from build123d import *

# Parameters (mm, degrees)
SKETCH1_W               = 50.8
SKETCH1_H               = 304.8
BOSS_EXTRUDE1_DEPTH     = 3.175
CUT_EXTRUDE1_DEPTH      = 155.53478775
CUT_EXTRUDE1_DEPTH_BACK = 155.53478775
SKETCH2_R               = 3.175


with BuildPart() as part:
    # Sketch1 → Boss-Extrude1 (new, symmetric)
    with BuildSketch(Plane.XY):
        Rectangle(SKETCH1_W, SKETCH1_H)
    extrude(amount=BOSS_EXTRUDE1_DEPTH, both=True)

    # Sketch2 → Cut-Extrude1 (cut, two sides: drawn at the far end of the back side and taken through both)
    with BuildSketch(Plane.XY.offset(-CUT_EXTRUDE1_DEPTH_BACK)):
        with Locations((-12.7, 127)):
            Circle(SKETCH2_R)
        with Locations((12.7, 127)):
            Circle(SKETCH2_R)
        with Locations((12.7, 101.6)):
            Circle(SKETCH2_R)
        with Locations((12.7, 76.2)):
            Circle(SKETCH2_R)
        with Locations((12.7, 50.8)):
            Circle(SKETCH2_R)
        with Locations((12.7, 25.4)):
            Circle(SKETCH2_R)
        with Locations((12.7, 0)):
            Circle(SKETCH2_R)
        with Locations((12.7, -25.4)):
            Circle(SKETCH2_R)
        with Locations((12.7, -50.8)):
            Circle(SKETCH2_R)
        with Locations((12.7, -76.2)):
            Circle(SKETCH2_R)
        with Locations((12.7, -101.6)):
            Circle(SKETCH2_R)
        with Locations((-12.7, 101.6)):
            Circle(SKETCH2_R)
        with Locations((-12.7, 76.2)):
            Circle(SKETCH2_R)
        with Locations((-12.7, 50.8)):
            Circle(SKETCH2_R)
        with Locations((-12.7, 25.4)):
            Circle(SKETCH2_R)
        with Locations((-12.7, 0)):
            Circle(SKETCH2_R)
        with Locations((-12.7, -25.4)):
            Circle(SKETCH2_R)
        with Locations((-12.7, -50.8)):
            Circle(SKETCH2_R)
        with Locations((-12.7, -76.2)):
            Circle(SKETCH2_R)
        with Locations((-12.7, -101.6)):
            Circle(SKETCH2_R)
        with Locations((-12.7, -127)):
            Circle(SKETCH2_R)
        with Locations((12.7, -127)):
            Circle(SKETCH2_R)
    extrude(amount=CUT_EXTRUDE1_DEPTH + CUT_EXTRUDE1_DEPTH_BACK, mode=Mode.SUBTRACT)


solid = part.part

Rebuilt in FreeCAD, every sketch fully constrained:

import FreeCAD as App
import Part
import Sketcher
from FreeCAD import Vector
Q = App.Units.Quantity

doc = App.newDocument("Part")
body = doc.addObject("PartDesign::Body", "Body")

# Sketch on XY plane
sketch1 = doc.addObject("Sketcher::SketchObject", "Sketch")
body.addObject(sketch1)
sketch1.AttachmentSupport = (doc.XY_Plane, [""])
sketch1.MapMode = "FlatFace"
sketch1.addGeometry(Part.LineSegment(Vector(-25, 152, 0), Vector(-25, -152, 0)), False)
sketch1.addGeometry(Part.LineSegment(Vector(-25, -152, 0), Vector(25, -152, 0)), False)
sketch1.addGeometry(Part.LineSegment(Vector(25, -152, 0), Vector(25, 152, 0)), False)
sketch1.addGeometry(Part.LineSegment(Vector(25, 152, 0), Vector(-25, 152, 0)), False)
sketch1.addConstraint(Sketcher.Constraint("Coincident", 0, 2, 1, 1))
sketch1.addConstraint(Sketcher.Constraint("Coincident", 1, 2, 2, 1))
sketch1.addConstraint(Sketcher.Constraint("Coincident", 2, 2, 3, 1))
sketch1.addConstraint(Sketcher.Constraint("Coincident", 3, 2, 0, 1))
sketch1.addConstraint(Sketcher.Constraint("Vertical", 0))
sketch1.addConstraint(Sketcher.Constraint("Horizontal", 1))
sketch1.addConstraint(Sketcher.Constraint("Vertical", 2))
sketch1.addConstraint(Sketcher.Constraint("Horizontal", 3))
sketch1.addConstraint(Sketcher.Constraint("Symmetric", 0, 2, 2, 2, -1, 1))
sketch1.addConstraint(Sketcher.Constraint("DistanceX", 1, 1, 1, 2, Q("2 in")))
sketch1.addConstraint(Sketcher.Constraint("DistanceY", 0, 2, 0, 1, Q("12 in")))
pad1 = doc.addObject("PartDesign::Pad", "Pad")
body.addObject(pad1)
pad1.Profile = sketch1
pad1.Length = Q("0.25 in")
pad1.Midplane = True

# Sketch on XY plane
sketch2 = doc.addObject("Sketcher::SketchObject", "Sketch001")
body.addObject(sketch2)
sketch2.AttachmentSupport = (doc.XY_Plane, [""])
sketch2.MapMode = "FlatFace"
sketch2.addGeometry(Part.Circle(Vector(-12.7, 127, 0), Vector(0, 0, 1), 3.2), False)
sketch2.addGeometry(Part.Circle(Vector(12.7, 127, 0), Vector(0, 0, 1), 3.2), False)
sketch2.addGeometry(Part.Circle(Vector(12.7, 101.6, 0), Vector(0, 0, 1), 3.2), False)
sketch2.addGeometry(Part.Circle(Vector(12.7, 76.2, 0), Vector(0, 0, 1), 3.2), False)
sketch2.addGeometry(Part.Circle(Vector(12.7, 50.8, 0), Vector(0, 0, 1), 3.2), False)
sketch2.addGeometry(Part.Circle(Vector(12.7, 25.4, 0), Vector(0, 0, 1), 3.2), False)
sketch2.addGeometry(Part.Circle(Vector(12.7, 0, 0), Vector(0, 0, 1), 3.2), False)
sketch2.addGeometry(Part.Circle(Vector(12.7, -25.4, 0), Vector(0, 0, 1), 3.2), False)
sketch2.addGeometry(Part.Circle(Vector(12.7, -50.8, 0), Vector(0, 0, 1), 3.2), False)
sketch2.addGeometry(Part.Circle(Vector(12.7, -76.2, 0), Vector(0, 0, 1), 3.2), False)
sketch2.addGeometry(Part.Circle(Vector(12.7, -101.6, 0), Vector(0, 0, 1), 3.2), False)
sketch2.addGeometry(Part.Circle(Vector(-12.7, 101.6, 0), Vector(0, 0, 1), 3.2), False)
sketch2.addGeometry(Part.Circle(Vector(-12.7, 76.2, 0), Vector(0, 0, 1), 3.2), False)
sketch2.addGeometry(Part.Circle(Vector(-12.7, 50.8, 0), Vector(0, 0, 1), 3.2), False)
sketch2.addGeometry(Part.Circle(Vector(-12.7, 25.4, 0), Vector(0, 0, 1), 3.2), False)
sketch2.addGeometry(Part.Circle(Vector(-12.7, 0, 0), Vector(0, 0, 1), 3.2), False)
sketch2.addGeometry(Part.Circle(Vector(-12.7, -25.4, 0), Vector(0, 0, 1), 3.2), False)
sketch2.addGeometry(Part.Circle(Vector(-12.7, -50.8, 0), Vector(0, 0, 1), 3.2), False)
sketch2.addGeometry(Part.Circle(Vector(-12.7, -76.2, 0), Vector(0, 0, 1), 3.2), False)
sketch2.addGeometry(Part.Circle(Vector(-12.7, -101.6, 0), Vector(0, 0, 1), 3.2), False)
sketch2.addGeometry(Part.Circle(Vector(-12.7, -127, 0), Vector(0, 0, 1), 3.2), False)
sketch2.addGeometry(Part.Circle(Vector(12.7, -127, 0), Vector(0, 0, 1), 3.2), False)
sketch2.addConstraint(Sketcher.Constraint("Equal", 0, 1))
sketch2.addConstraint(Sketcher.Constraint("Equal", 1, 2))
sketch2.addConstraint(Sketcher.Constraint("Equal", 2, 3))
sketch2.addConstraint(Sketcher.Constraint("Equal", 3, 4))
sketch2.addConstraint(Sketcher.Constraint("Equal", 4, 5))
sketch2.addConstraint(Sketcher.Constraint("Equal", 5, 6))
sketch2.addConstraint(Sketcher.Constraint("Equal", 6, 7))
sketch2.addConstraint(Sketcher.Constraint("Equal", 7, 8))
sketch2.addConstraint(Sketcher.Constraint("Equal", 8, 9))
sketch2.addConstraint(Sketcher.Constraint("Equal", 9, 10))
sketch2.addConstraint(Sketcher.Constraint("Equal", 10, 11))
sketch2.addConstraint(Sketcher.Constraint("Equal", 11, 12))
sketch2.addConstraint(Sketcher.Constraint("Equal", 12, 13))
sketch2.addConstraint(Sketcher.Constraint("Equal", 13, 14))
sketch2.addConstraint(Sketcher.Constraint("Equal", 14, 15))
sketch2.addConstraint(Sketcher.Constraint("Equal", 15, 16))
sketch2.addConstraint(Sketcher.Constraint("Equal", 16, 17))
sketch2.addConstraint(Sketcher.Constraint("Equal", 17, 18))
sketch2.addConstraint(Sketcher.Constraint("Equal", 18, 19))
sketch2.addConstraint(Sketcher.Constraint("Equal", 19, 20))
sketch2.addConstraint(Sketcher.Constraint("Equal", 20, 21))
sketch2.addConstraint(Sketcher.Constraint("Symmetric", 10, 3, 11, 3, -1, 1))
sketch2.addConstraint(Sketcher.Constraint("Symmetric", 9, 3, 12, 3, -1, 1))
sketch2.addConstraint(Sketcher.Constraint("Symmetric", 8, 3, 13, 3, -1, 1))
sketch2.addConstraint(Sketcher.Constraint("Symmetric", 7, 3, 14, 3, -1, 1))
sketch2.addConstraint(Sketcher.Constraint("Symmetric", 6, 3, 15, 3, -1, 1))
sketch2.addConstraint(Sketcher.Constraint("Symmetric", 5, 3, 16, 3, -1, 1))
sketch2.addConstraint(Sketcher.Constraint("Symmetric", 4, 3, 17, 3, -1, 1))
sketch2.addConstraint(Sketcher.Constraint("Symmetric", 3, 3, 18, 3, -1, 1))
sketch2.addConstraint(Sketcher.Constraint("Symmetric", 2, 3, 19, 3, -1, 1))
sketch2.addConstraint(Sketcher.Constraint("Symmetric", 1, 3, 20, 3, -1, 1))
sketch2.addConstraint(Sketcher.Constraint("Symmetric", 0, 3, 21, 3, -1, 1))
sketch2.addConstraint(Sketcher.Constraint("Symmetric", 0, 3, 1, 3, -2))
sketch2.addConstraint(Sketcher.Constraint("Symmetric", 2, 3, 11, 3, -2))
sketch2.addConstraint(Sketcher.Constraint("Symmetric", 3, 3, 12, 3, -2))
sketch2.addConstraint(Sketcher.Constraint("Symmetric", 4, 3, 13, 3, -2))
sketch2.addConstraint(Sketcher.Constraint("Symmetric", 5, 3, 14, 3, -2))
sketch2.addConstraint(Sketcher.Constraint("PointOnObject", 6, 3, -1))
sketch2.addConstraint(Sketcher.Constraint("Vertical", 1, 3, 2, 3))
sketch2.addConstraint(Sketcher.Constraint("Vertical", 2, 3, 3, 3))
sketch2.addConstraint(Sketcher.Constraint("Vertical", 3, 3, 4, 3))
sketch2.addConstraint(Sketcher.Constraint("Vertical", 4, 3, 5, 3))
sketch2.addConstraint(Sketcher.Constraint("Vertical", 5, 3, 6, 3))
sketch2.addConstraint(Sketcher.Constraint("Diameter", 0, Q("0.25 in")))
sketch2.addConstraint(Sketcher.Constraint("DistanceY", -1, 1, 0, 3, Q("5 in")))
sketch2.addConstraint(Sketcher.Constraint("DistanceY", -1, 1, 2, 3, Q("4 in")))
sketch2.addConstraint(Sketcher.Constraint("DistanceY", -1, 1, 3, 3, Q("3 in")))
sketch2.addConstraint(Sketcher.Constraint("DistanceY", -1, 1, 4, 3, Q("2 in")))
sketch2.addConstraint(Sketcher.Constraint("DistanceY", -1, 1, 5, 3, Q("1 in")))
sketch2.addConstraint(Sketcher.Constraint("DistanceX", 0, 3, 1, 3, Q("1 in")))
pocket1 = doc.addObject("PartDesign::Pocket", "Pocket")
body.addObject(pocket1)
pocket1.Profile = sketch2
pocket1.Type = "ThroughAll"
pocket1.Midplane = True

doc.recompute()
